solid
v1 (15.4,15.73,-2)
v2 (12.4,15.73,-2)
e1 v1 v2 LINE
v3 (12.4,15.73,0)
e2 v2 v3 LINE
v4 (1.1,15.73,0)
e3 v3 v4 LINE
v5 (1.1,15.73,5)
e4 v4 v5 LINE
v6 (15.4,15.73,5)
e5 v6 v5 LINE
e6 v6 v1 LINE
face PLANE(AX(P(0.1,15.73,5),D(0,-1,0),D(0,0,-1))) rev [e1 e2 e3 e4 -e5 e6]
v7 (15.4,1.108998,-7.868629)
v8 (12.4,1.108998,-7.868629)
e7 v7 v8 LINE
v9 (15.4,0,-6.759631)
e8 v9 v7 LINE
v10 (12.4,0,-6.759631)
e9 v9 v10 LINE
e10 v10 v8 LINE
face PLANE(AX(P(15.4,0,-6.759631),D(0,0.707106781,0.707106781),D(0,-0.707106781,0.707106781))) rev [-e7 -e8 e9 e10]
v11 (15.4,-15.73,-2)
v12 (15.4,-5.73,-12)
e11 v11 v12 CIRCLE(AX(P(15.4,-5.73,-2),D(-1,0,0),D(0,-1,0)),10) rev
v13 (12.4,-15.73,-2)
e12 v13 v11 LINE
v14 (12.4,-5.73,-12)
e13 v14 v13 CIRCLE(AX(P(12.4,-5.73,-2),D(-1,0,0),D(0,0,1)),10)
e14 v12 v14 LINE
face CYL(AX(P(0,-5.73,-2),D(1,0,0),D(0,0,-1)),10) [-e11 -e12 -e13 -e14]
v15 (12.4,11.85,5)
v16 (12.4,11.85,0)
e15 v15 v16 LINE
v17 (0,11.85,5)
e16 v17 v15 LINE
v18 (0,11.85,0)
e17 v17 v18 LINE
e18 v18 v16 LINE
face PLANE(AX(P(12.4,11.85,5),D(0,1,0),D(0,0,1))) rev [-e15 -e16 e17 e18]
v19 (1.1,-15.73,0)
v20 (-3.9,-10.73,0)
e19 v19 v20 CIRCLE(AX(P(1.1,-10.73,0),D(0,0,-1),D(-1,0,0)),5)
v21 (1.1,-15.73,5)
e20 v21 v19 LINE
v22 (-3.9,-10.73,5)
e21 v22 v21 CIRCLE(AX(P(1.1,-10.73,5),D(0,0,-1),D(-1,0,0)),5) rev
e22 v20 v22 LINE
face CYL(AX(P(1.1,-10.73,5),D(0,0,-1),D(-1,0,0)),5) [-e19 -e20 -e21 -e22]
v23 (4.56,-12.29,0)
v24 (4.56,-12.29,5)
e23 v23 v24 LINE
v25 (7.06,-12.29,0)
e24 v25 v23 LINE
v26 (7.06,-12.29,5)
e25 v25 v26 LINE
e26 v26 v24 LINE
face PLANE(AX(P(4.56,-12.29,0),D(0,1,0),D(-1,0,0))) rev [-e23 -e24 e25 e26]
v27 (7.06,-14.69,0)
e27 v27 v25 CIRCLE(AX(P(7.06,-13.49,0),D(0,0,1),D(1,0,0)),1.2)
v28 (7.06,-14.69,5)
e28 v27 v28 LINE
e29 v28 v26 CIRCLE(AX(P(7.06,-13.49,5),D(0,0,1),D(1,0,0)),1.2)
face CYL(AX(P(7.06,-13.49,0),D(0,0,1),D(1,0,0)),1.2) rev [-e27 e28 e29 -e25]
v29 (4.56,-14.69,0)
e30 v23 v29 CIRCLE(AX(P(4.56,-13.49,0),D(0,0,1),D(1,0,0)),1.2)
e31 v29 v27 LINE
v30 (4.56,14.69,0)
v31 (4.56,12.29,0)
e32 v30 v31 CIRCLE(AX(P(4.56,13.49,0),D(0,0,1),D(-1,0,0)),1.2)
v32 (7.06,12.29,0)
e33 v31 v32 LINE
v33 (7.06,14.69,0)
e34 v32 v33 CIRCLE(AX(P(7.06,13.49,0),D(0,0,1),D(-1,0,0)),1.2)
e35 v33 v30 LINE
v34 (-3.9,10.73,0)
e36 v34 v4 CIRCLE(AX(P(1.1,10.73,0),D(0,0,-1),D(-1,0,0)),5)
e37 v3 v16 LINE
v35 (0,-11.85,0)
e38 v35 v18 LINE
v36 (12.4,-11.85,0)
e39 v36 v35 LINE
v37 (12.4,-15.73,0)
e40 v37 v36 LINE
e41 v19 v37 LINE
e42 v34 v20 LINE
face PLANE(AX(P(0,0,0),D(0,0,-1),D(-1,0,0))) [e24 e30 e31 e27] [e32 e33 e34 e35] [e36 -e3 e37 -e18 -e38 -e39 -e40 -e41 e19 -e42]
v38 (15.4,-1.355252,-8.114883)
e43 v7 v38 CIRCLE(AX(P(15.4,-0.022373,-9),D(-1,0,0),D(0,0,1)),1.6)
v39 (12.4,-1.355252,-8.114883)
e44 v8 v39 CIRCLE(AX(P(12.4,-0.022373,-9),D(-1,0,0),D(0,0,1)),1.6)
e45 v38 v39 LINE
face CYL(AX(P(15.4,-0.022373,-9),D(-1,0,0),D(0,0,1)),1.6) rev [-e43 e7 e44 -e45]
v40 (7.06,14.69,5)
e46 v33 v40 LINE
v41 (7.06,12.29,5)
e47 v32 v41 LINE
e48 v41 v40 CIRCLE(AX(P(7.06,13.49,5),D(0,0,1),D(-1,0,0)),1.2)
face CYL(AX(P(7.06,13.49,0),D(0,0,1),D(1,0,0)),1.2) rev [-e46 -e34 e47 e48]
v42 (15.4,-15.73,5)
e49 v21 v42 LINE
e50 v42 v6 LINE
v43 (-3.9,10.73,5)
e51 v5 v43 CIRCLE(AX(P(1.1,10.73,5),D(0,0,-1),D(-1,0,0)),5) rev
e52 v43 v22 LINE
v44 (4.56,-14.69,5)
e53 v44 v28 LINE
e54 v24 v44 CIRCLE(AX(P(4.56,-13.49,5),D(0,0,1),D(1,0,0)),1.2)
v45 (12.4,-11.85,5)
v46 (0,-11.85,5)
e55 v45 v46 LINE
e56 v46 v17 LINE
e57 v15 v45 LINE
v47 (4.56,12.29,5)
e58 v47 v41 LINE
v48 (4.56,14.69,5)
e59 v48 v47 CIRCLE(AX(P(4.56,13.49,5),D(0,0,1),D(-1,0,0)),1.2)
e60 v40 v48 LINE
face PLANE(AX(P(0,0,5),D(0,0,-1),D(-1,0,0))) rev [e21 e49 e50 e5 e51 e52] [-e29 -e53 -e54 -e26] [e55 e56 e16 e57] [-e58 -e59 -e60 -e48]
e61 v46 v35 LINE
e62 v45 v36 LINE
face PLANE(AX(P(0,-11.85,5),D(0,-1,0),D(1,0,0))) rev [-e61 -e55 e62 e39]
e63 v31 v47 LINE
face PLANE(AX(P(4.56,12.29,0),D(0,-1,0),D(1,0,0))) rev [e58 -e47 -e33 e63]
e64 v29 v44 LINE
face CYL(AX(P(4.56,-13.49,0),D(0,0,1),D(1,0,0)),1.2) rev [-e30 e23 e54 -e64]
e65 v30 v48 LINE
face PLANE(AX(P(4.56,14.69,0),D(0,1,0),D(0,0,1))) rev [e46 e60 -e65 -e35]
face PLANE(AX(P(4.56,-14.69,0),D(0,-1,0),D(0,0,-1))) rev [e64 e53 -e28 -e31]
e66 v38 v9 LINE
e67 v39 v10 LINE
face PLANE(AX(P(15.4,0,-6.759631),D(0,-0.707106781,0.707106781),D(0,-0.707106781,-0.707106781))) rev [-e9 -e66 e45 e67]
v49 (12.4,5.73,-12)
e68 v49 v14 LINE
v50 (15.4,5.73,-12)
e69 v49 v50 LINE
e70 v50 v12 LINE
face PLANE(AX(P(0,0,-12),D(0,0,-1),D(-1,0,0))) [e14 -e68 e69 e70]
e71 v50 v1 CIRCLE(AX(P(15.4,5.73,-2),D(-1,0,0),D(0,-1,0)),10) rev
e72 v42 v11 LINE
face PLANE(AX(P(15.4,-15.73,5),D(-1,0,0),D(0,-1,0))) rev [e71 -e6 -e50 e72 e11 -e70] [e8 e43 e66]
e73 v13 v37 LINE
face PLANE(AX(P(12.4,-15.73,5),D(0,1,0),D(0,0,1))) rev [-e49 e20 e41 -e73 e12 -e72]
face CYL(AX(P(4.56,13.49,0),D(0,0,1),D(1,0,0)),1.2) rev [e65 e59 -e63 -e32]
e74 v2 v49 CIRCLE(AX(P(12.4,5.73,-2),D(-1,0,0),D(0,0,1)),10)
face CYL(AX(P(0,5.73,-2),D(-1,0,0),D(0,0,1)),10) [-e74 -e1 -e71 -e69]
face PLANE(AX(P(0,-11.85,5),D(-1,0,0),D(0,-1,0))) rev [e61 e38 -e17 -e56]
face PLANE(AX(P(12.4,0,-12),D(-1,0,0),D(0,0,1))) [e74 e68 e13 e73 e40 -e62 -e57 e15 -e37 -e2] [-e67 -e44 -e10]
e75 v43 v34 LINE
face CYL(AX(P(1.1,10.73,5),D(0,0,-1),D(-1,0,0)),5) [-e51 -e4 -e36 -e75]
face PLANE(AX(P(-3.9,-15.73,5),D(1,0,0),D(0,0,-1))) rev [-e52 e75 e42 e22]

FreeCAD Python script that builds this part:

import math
import FreeCAD as App
import Part
import Sketcher

V = App.Vector
Q = App.Units.Quantity


def edges_at(feature, points):
    """Names of the edges that pass closest to the given points."""
    edges = feature.Shape.Edges
    near = lambda p: min(range(len(edges)), key=lambda i: edges[i].distToShape(Part.Vertex(*p))[0])
    return sorted({f"Edge{near(p) + 1}" for p in points})

doc = App.newDocument("Part")
body = doc.addObject("PartDesign::Body", "Body")

sketch1 = doc.addObject("Sketcher::SketchObject", "Sketch")
body.addObject(sketch1)
sketch1.AttachmentSupport = (doc.XY_Plane, [""])
sketch1.MapMode = "FlatFace"
sketch1.addGeometry(Part.LineSegment(V(0, -11.85, 0), V(0, 11.85, 0)), False)
sketch1.addGeometry(Part.LineSegment(V(0, 11.85, 0), V(15.4, 11.85, 0)), False)
sketch1.addGeometry(Part.LineSegment(V(15.4, 11.85, 0), V(15.4, 15.73, 0)), False)
sketch1.addGeometry(Part.LineSegment(V(15.4, 15.73, 0), V(-3.9, 15.73, 0)), False)
sketch1.addGeometry(Part.LineSegment(V(-3.9, 15.73, 0), V(-3.9, -15.73, 0)), False)
sketch1.addGeometry(Part.LineSegment(V(-3.9, -15.73, 0), V(15.4, -15.73, 0)), False)
sketch1.addGeometry(Part.LineSegment(V(15.4, -15.73, 0), V(15.4, -11.85, 0)), False)
sketch1.addGeometry(Part.LineSegment(V(15.4, -11.85, 0), V(0, -11.85, 0)), False)
sketch1.addConstraint(Sketcher.Constraint("Coincident", 0, 2, 1, 1))
sketch1.addConstraint(Sketcher.Constraint("Coincident", 1, 2, 2, 1))
sketch1.addConstraint(Sketcher.Constraint("Coincident", 2, 2, 3, 1))
sketch1.addConstraint(Sketcher.Constraint("Coincident", 3, 2, 4, 1))
sketch1.addConstraint(Sketcher.Constraint("Coincident", 4, 2, 5, 1))
sketch1.addConstraint(Sketcher.Constraint("Coincident", 5, 2, 6, 1))
sketch1.addConstraint(Sketcher.Constraint("Coincident", 6, 2, 7, 1))
sketch1.addConstraint(Sketcher.Constraint("Coincident", 7, 2, 0, 1))
sketch1.addConstraint(Sketcher.Constraint("Vertical", 0))
sketch1.addConstraint(Sketcher.Constraint("Horizontal", 1))
sketch1.addConstraint(Sketcher.Constraint("Vertical", 2))
sketch1.addConstraint(Sketcher.Constraint("Horizontal", 3))
sketch1.addConstraint(Sketcher.Constraint("Vertical", 4))
sketch1.addConstraint(Sketcher.Constraint("Horizontal", 5))
sketch1.addConstraint(Sketcher.Constraint("Vertical", 6))
sketch1.addConstraint(Sketcher.Constraint("Horizontal", 7))
sketch1.addConstraint(Sketcher.Constraint("Symmetric", 0, 2, 7, 2, -1, 1))
sketch1.addConstraint(Sketcher.Constraint("Symmetric", 2, 2, 5, 2, -1))
sketch1.addConstraint(Sketcher.Constraint("DistanceX", 1, 1, 1, 2, Q("15.4 mm")))
sketch1.addConstraint(Sketcher.Constraint("DistanceX", 3, 2, 3, 1, Q("19.3 mm")))
sketch1.addConstraint(Sketcher.Constraint("DistanceY", 0, 1, 0, 2, Q("23.7 mm")))
sketch1.addConstraint(Sketcher.Constraint("DistanceY", 2, 1, 2, 2, Q("3.88 mm")))
pad1 = doc.addObject("PartDesign::Pad", "Pad")
body.addObject(pad1)
pad1.Profile = sketch1
pad1.Length = 5

sketch2 = doc.addObject("Sketcher::SketchObject", "Sketch001")
body.addObject(sketch2)
sketch2.AttachmentSupport = (doc.XY_Plane, [""])
sketch2.MapMode = "FlatFace"
sketch2.AttachmentOffset = App.Placement(V(0, 0, 5), App.Rotation())
sketch2.addGeometry(Part.LineSegment(V(7.06, -12.29, 0), V(4.56, -12.29, 0)), False)
sketch2.addGeometry(Part.ArcOfCircle(Part.Circle(V(4.56, -13.49, 0), V(0, 0, 1), 1.2), math.radians(90), math.radians(270)), False)
sketch2.addGeometry(Part.LineSegment(V(4.56, -14.69, 0), V(7.06, -14.69, 0)), False)
sketch2.addGeometry(Part.ArcOfCircle(Part.Circle(V(7.06, -13.49, 0), V(0, 0, 1), 1.2), math.radians(-90), math.radians(90)), False)
sketch2.addGeometry(Part.LineSegment(V(4.56, 12.29, 0), V(7.06, 12.29, 0)), False)
sketch2.addGeometry(Part.ArcOfCircle(Part.Circle(V(7.06, 13.49, 0), V(0, 0, 1), 1.2), math.radians(-90), math.radians(90)), False)
sketch2.addGeometry(Part.LineSegment(V(7.06, 14.69, 0), V(4.56, 14.69, 0)), False)
sketch2.addGeometry(Part.ArcOfCircle(Part.Circle(V(4.56, 13.49, 0), V(0, 0, 1), 1.2), math.radians(90), math.radians(270)), False)
sketch2.addConstraint(Sketcher.Constraint("Tangent", 0, 2, 1, 1))
sketch2.addConstraint(Sketcher.Constraint("Tangent", 1, 2, 2, 1))
sketch2.addConstraint(Sketcher.Constraint("Tangent", 2, 2, 3, 1))
sketch2.addConstraint(Sketcher.Constraint("Tangent", 3, 2, 0, 1))
sketch2.addConstraint(Sketcher.Constraint("Tangent", 4, 2, 5, 1))
sketch2.addConstraint(Sketcher.Constraint("Tangent", 5, 2, 6, 1))
sketch2.addConstraint(Sketcher.Constraint("Tangent", 6, 2, 7, 1))
sketch2.addConstraint(Sketcher.Constraint("Tangent", 7, 2, 4, 1))
sketch2.addConstraint(Sketcher.Constraint("Horizontal", 0))
sketch2.addConstraint(Sketcher.Constraint("Horizontal", 2))
sketch2.addConstraint(Sketcher.Constraint("Horizontal", 4))
sketch2.addConstraint(Sketcher.Constraint("Horizontal", 6))
sketch2.addConstraint(Sketcher.Constraint("Equal", 3, 5))
sketch2.addConstraint(Sketcher.Constraint("Symmetric", 3, 3, 5, 3, -1))
sketch2.addConstraint(Sketcher.Constraint("Vertical", 1, 3, 7, 3))
sketch2.addConstraint(Sketcher.Constraint("Radius", 1, Q("1.2 mm")))
sketch2.addConstraint(Sketcher.Constraint("DistanceX", 0, 2, 0, 1, Q("2.5 mm")))
sketch2.addConstraint(Sketcher.Constraint("DistanceX", -1, 1, 1, 3, Q("4.56 mm")))
sketch2.addConstraint(Sketcher.Constraint("DistanceY", 1, 3, -1, 1, Q("13.49 mm")))
pocket1 = doc.addObject("PartDesign::Pocket", "Pocket")
body.addObject(pocket1)
pocket1.Profile = sketch2
pocket1.Type = "ThroughAll"

sketch3 = doc.addObject("Sketcher::SketchObject", "Sketch002")
body.addObject(sketch3)
sketch3.AttachmentSupport = (doc.XY_Plane, [""])
sketch3.MapMode = "FlatFace"
sketch3.addGeometry(Part.LineSegment(V(12.4, 11.85, 0), V(12.4, 15.73, 0)), False)
sketch3.addGeometry(Part.LineSegment(V(12.4, 15.73, 0), V(15.4, 15.73, 0)), False)
sketch3.addGeometry(Part.LineSegment(V(15.4, 15.73, 0), V(15.4, 11.85, 0)), False)
sketch3.addGeometry(Part.LineSegment(V(15.4, 11.85, 0), V(12.4, 11.85, 0)), False)
sketch3.addGeometry(Part.LineSegment(V(12.4, -15.73, 0), V(12.4, -11.85, 0)), False)
sketch3.addGeometry(Part.LineSegment(V(12.4, -11.85, 0), V(15.4, -11.85, 0)), False)
sketch3.addGeometry(Part.LineSegment(V(15.4, -11.85, 0), V(15.4, -15.73, 0)), False)
sketch3.addGeometry(Part.LineSegment(V(15.4, -15.73, 0), V(12.4, -15.73, 0)), False)
sketch3.addConstraint(Sketcher.Constraint("Coincident", 0, 2, 1, 1))
sketch3.addConstraint(Sketcher.Constraint("Coincident", 1, 2, 2, 1))
sketch3.addConstraint(Sketcher.Constraint("Coincident", 2, 2, 3, 1))
sketch3.addConstraint(Sketcher.Constraint("Coincident", 3, 2, 0, 1))
sketch3.addConstraint(Sketcher.Constraint("Coincident", 4, 2, 5, 1))
sketch3.addConstraint(Sketcher.Constraint("Coincident", 5, 2, 6, 1))
sketch3.addConstraint(Sketcher.Constraint("Coincident", 6, 2, 7, 1))
sketch3.addConstraint(Sketcher.Constraint("Coincident", 7, 2, 4, 1))
sketch3.addConstraint(Sketcher.Constraint("Vertical", 0))
sketch3.addConstraint(Sketcher.Constraint("Horizontal", 1))
sketch3.addConstraint(Sketcher.Constraint("Vertical", 2))
sketch3.addConstraint(Sketcher.Constraint("Horizontal", 3))
sketch3.addConstraint(Sketcher.Constraint("Vertical", 4))
sketch3.addConstraint(Sketcher.Constraint("Horizontal", 5))
sketch3.addConstraint(Sketcher.Constraint("Vertical", 6))
sketch3.addConstraint(Sketcher.Constraint("Horizontal", 7))
sketch3.addConstraint(Sketcher.Constraint("Symmetric", 3, 2, 4, 2, -1))
sketch3.addConstraint(Sketcher.Constraint("Symmetric", 1, 2, 6, 2, -1))
sketch3.addConstraint(Sketcher.Constraint("DistanceX", 1, 1, 1, 2, Q("3 mm")))
sketch3.addConstraint(Sketcher.Constraint("DistanceY", 0, 1, 0, 2, Q("3.88 mm")))
sketch3.addConstraint(Sketcher.Constraint("DistanceX", -1, 1, 0, 2, Q("12.4 mm")))
sketch3.addConstraint(Sketcher.Constraint("DistanceY", 4, 2, 3, 2, Q("23.7 mm")))
pad2 = doc.addObject("PartDesign::Pad", "Pad001")
body.addObject(pad2)
pad2.Profile = sketch3
pad2.Length = 12
pad2.Reversed = True

sketch4 = doc.addObject("Sketcher::SketchObject", "Sketch003")
body.addObject(sketch4)
sketch4.AttachmentSupport = (doc.XZ_Plane, [""])
sketch4.MapMode = "FlatFace"
sketch4.AttachmentOffset = App.Placement(V(0, 0, 11.85), App.Rotation())
sketch4.addGeometry(Part.LineSegment(V(15.4, -5.921497, 0), V(15.4, -12, 0)), False)
sketch4.addGeometry(Part.LineSegment(V(15.4, -12, 0), V(12.4, -12, 0)), False)
sketch4.addGeometry(Part.LineSegment(V(12.4, -12, 0), V(12.4, -5.921497, 0)), False)
sketch4.addGeometry(Part.LineSegment(V(12.4, -5.921497, 0), V(15.4, -5.921497, 0)), False)
sketch4.addConstraint(Sketcher.Constraint("Coincident", 0, 2, 1, 1))
sketch4.addConstraint(Sketcher.Constraint("Coincident", 1, 2, 2, 1))
sketch4.addConstraint(Sketcher.Constraint("Coincident", 2, 2, 3, 1))
sketch4.addConstraint(Sketcher.Constraint("Coincident", 3, 2, 0, 1))
sketch4.addConstraint(Sketcher.Constraint("Vertical", 0))
sketch4.addConstraint(Sketcher.Constraint("Horizontal", 1))
sketch4.addConstraint(Sketcher.Constraint("Vertical", 2))
sketch4.addConstraint(Sketcher.Constraint("Horizontal", 3))
sketch4.addConstraint(Sketcher.Constraint("DistanceX", 1, 2, 1, 1, Q("3 mm")))
sketch4.addConstraint(Sketcher.Constraint("DistanceY", 0, 2, -1, 1, Q("12 mm")))
sketch4.addConstraint(Sketcher.Constraint("DistanceX", -1, 1, 0, 2, Q("15.4 mm")))
sketch4.addConstraint(Sketcher.Constraint("DistanceY", 0, 2, 0, 1, Q("6.078503 mm")))
pad3 = doc.addObject("PartDesign::Pad", "Pad002")
body.addObject(pad3)
pad3.Profile = sketch4
pad3.Type = "UpToFirst"
pad3.Reversed = True

sketch5 = doc.addObject("Sketcher::SketchObject", "Sketch004")
body.addObject(sketch5)
sketch5.AttachmentSupport = (doc.XY_Plane, [""])
sketch5.MapMode = "FlatFace"
sketch5.AttachmentOffset = App.Placement(V(0, 0, -5.921497), App.Rotation())
sketch5.addGeometry(Part.LineSegment(V(12.4, 11.85, 0), V(12.4, -11.85, 0)), False)
sketch5.addGeometry(Part.LineSegment(V(12.4, -11.85, 0), V(15.4, -11.85, 0)), False)
sketch5.addGeometry(Part.LineSegment(V(15.4, -11.85, 0), V(15.4, 11.85, 0)), False)
sketch5.addGeometry(Part.LineSegment(V(15.4, 11.85, 0), V(12.4, 11.85, 0)), False)
sketch5.addConstraint(Sketcher.Constraint("Coincident", 0, 2, 1, 1))
sketch5.addConstraint(Sketcher.Constraint("Coincident", 1, 2, 2, 1))
sketch5.addConstraint(Sketcher.Constraint("Coincident", 2, 2, 3, 1))
sketch5.addConstraint(Sketcher.Constraint("Coincident", 3, 2, 0, 1))
sketch5.addConstraint(Sketcher.Constraint("Vertical", 0))
sketch5.addConstraint(Sketcher.Constraint("Horizontal", 1))
sketch5.addConstraint(Sketcher.Constraint("Vertical", 2))
sketch5.addConstraint(Sketcher.Constraint("Horizontal", 3))
sketch5.addConstraint(Sketcher.Constraint("DistanceX", 1, 1, 1, 2, Q("3 mm")))
sketch5.addConstraint(Sketcher.Constraint("DistanceY", 0, 2, 0, 1, Q("23.7 mm")))
sketch5.addConstraint(Sketcher.Constraint("DistanceX", -1, 1, 0, 2, Q("12.4 mm")))
sketch5.addConstraint(Sketcher.Constraint("DistanceY", 0, 2, -1, 1, Q("11.85 mm")))
pad4 = doc.addObject("PartDesign::Pad", "Pad003")
body.addObject(pad4)
pad4.Profile = sketch5
pad4.Length = 10.921497

sketch6 = doc.addObject("Sketcher::SketchObject", "Sketch005")
body.addObject(sketch6)
sketch6.AttachmentSupport = (doc.YZ_Plane, [""])
sketch6.MapMode = "FlatFace"
sketch6.AttachmentOffset = App.Placement(V(0, 0, 12.4), App.Rotation())
sketch6.addGeometry(Part.LineSegment(V(0, -6.759631, 0), V(1.108998, -7.868629, 0)), False)
sketch6.addGeometry(Part.ArcOfCircle(Part.Circle(V(-0.022373, -9, 0), V(0, 0, 1), 1.6), math.radians(146.413294), math.radians(405)), False)
sketch6.addGeometry(Part.LineSegment(V(-1.355252, -8.114883, 0), V(0, -6.759631, 0)), False)
sketch6.addConstraint(Sketcher.Constraint("Tangent", 0, 2, 1, 2))
sketch6.addConstraint(Sketcher.Constraint("Coincident", 1, 1, 2, 1))
sketch6.addConstraint(Sketcher.Constraint("Coincident", 2, 2, 0, 1))
sketch6.addConstraint(Sketcher.Constraint("PointOnObject", 2, 2, -2))
sketch6.addConstraint(Sketcher.Constraint("Perpendicular", 0, 2))
sketch6.addConstraint(Sketcher.Constraint("Radius", 1, Q("1.6 mm")))
sketch6.addConstraint(Sketcher.Constraint("Angle", 0, Q("-45 deg")))
sketch6.addConstraint(Sketcher.Constraint("DistanceY", 1, 3, -1, 1, Q("9 mm")))
sketch6.addConstraint(Sketcher.Constraint("DistanceX", -1, 1, 0, 2, Q("1.108998 mm")))
pocket2 = doc.addObject("PartDesign::Pocket", "Pocket001")
body.addObject(pocket2)
pocket2.Profile = sketch6
pocket2.Type = "ThroughAll"
pocket2.Reversed = True
doc.recompute()

fillet = doc.addObject("PartDesign::Fillet", "Fillet")
body.addObject(fillet)
fillet.Base = (pocket2, edges_at(pocket2, [(13.9, 15.73, -12), (13.9, -15.73, -12)]))
fillet.Radius = 10
doc.recompute()

fillet2 = doc.addObject("PartDesign::Fillet", "Fillet001")
body.addObject(fillet2)
fillet2.Base = (fillet, edges_at(fillet, [(-3.9, -15.73, 2.5), (-3.9, 15.73, 2.5)]))
fillet2.Radius = 5

doc.recompute()
